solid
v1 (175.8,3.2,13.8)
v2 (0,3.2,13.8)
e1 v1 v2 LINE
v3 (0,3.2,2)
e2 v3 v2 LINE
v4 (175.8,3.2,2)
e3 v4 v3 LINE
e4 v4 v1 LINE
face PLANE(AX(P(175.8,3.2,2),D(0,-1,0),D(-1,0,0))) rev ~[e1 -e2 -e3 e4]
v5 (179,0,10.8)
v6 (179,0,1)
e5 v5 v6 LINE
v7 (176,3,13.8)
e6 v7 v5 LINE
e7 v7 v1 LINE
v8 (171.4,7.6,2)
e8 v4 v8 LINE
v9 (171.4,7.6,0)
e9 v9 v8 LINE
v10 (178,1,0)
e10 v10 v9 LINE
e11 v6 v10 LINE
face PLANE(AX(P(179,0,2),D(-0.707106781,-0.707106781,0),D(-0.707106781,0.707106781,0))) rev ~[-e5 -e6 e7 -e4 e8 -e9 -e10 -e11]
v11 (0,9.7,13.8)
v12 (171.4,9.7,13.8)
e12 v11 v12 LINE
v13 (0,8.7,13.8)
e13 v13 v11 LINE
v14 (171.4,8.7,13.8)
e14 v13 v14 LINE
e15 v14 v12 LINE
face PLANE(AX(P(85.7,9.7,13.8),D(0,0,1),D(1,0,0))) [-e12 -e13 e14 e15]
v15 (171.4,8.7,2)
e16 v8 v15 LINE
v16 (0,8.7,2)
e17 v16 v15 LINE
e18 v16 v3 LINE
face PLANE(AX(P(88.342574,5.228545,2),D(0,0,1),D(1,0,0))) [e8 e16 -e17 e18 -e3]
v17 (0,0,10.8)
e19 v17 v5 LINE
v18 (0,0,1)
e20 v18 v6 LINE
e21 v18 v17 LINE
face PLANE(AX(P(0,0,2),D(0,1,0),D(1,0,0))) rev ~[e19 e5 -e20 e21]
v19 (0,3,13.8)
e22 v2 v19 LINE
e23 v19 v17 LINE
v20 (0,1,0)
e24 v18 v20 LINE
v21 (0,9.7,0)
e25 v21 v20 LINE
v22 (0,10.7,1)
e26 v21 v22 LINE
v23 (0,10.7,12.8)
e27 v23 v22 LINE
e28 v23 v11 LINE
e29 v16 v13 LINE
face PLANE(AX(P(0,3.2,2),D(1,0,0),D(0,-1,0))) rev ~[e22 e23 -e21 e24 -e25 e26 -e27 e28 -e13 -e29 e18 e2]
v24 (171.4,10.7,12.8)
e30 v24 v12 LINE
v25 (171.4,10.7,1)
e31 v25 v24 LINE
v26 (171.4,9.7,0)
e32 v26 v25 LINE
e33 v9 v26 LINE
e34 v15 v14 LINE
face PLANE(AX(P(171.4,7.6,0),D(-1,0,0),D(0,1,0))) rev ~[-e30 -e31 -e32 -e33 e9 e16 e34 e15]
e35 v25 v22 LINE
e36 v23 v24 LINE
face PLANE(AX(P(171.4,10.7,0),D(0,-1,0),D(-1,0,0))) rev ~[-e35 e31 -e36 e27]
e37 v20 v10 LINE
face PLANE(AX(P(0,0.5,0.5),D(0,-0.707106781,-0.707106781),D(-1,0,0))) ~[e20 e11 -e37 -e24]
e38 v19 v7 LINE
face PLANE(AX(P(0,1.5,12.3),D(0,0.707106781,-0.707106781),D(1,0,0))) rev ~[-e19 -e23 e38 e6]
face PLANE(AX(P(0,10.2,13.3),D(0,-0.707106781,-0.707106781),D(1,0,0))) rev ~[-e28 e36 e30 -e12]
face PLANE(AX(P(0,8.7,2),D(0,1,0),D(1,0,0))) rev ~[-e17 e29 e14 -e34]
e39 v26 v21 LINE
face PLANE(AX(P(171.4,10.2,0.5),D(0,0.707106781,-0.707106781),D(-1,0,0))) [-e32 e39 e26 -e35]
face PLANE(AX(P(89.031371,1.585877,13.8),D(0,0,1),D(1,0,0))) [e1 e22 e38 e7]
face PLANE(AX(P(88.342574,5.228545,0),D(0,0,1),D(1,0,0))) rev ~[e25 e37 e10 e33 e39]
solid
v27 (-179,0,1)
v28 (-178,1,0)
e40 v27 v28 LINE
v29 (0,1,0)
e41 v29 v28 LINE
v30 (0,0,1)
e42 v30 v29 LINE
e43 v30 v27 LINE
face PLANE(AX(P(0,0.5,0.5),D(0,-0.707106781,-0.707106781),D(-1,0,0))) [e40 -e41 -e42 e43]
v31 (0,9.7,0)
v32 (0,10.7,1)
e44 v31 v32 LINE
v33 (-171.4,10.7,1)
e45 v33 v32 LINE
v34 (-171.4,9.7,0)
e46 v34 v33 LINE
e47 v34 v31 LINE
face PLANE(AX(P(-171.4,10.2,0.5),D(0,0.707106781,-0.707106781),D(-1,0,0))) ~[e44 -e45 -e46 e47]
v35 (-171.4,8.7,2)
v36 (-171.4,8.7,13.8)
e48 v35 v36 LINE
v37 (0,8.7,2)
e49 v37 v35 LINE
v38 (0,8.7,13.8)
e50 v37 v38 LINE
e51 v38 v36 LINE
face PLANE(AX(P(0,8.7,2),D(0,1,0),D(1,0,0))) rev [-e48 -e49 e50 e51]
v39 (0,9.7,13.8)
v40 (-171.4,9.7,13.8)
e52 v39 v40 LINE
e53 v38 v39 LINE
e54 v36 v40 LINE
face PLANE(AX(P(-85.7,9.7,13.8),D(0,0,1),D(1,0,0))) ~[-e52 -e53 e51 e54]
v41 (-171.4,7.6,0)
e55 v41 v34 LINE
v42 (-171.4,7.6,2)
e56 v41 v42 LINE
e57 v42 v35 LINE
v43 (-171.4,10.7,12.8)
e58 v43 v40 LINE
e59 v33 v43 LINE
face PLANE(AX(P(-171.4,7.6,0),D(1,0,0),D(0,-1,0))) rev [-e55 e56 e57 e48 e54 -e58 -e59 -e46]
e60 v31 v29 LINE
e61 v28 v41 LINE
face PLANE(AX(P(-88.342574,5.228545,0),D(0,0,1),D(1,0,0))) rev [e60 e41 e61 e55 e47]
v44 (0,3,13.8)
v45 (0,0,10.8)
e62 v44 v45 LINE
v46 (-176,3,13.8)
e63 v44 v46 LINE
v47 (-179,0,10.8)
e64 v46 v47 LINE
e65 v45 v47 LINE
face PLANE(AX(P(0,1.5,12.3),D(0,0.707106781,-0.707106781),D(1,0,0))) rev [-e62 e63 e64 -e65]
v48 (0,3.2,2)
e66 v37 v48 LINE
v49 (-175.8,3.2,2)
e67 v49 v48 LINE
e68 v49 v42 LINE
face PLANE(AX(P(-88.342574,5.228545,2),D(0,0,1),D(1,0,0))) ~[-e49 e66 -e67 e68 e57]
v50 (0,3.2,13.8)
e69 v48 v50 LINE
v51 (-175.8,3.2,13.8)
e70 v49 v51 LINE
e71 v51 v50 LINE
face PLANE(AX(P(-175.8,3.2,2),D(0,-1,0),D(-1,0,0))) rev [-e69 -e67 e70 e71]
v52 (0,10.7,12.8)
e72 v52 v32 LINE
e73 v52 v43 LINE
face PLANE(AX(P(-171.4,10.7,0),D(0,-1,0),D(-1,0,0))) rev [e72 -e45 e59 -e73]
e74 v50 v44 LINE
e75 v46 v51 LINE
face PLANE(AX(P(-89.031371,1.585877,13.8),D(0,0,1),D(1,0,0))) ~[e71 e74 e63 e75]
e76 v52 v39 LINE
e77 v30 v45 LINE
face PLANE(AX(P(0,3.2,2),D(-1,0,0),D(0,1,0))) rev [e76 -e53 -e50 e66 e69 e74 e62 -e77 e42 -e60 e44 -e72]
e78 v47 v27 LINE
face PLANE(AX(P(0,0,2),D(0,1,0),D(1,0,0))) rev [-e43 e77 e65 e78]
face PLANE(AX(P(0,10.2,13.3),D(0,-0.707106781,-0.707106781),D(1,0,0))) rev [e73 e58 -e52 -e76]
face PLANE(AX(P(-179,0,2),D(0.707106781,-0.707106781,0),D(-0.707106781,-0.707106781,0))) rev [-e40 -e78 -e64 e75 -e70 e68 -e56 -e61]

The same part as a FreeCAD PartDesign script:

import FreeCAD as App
import Part
import Sketcher

V = App.Vector
Q = App.Units.Quantity


def edges_at(feature, points):
    """Names of the edges that pass closest to the given points."""
    edges = feature.Shape.Edges
    near = lambda p: min(range(len(edges)), key=lambda i: edges[i].distToShape(Part.Vertex(*p))[0])
    return sorted({f"Edge{near(p) + 1}" for p in points})


def add_polygon(sketch, points):
    """Adds a closed chain of lines whose ends are joined by coincident constraints."""
    first, n = sketch.GeometryCount, len(points)
    for a, b in zip(points, points[1:] + points[:1]):
        sketch.addGeometry(Part.LineSegment(App.Vector(*a, 0), App.Vector(*b, 0)), False)
    for i in range(n):
        sketch.addConstraint(Sketcher.Constraint("Coincident", first + i, 2, first + (i + 1) % n, 1))

doc = App.newDocument("Part")
body = doc.addObject("PartDesign::Body", "Body")

# Sketch on XY plane
sketch1 = doc.addObject("Sketcher::SketchObject", "Sketch")
body.addObject(sketch1)
sketch1.AttachmentSupport = (doc.XY_Plane, [""])
sketch1.MapMode = "FlatFace"
add_polygon(sketch1, [(0, 10.7), (0, 0), (179, 0), (171.4, 7.6), (171.4, 10.7)])  # lines 0-4
sketch1.addConstraint([
    Sketcher.Constraint("Vertical", 0),
    Sketcher.Constraint("Horizontal", 1),
    Sketcher.Constraint("Vertical", 3),
    Sketcher.Constraint("Horizontal", 4),
    Sketcher.Constraint("Coincident", 0, 2, -1, 1),
    Sketcher.Constraint("DistanceX", 1, 1, 1, 2, 179.0),
    Sketcher.Constraint("Angle", 2, Q("135 deg")),
    Sketcher.Constraint("DistanceX", 4, 2, 4, 1, 171.4),
    Sketcher.Constraint("DistanceY", 0, 2, 0, 1, 10.7),
])
pad1 = doc.addObject("PartDesign::Pad", "Pad")
body.addObject(pad1)
pad1.Profile = sketch1
pad1.Length = 2

# Sketch on XY plane
sketch2 = doc.addObject("Sketcher::SketchObject", "Sketch001")
body.addObject(sketch2)
sketch2.AttachmentSupport = (doc.XY_Plane, [""])
sketch2.MapMode = "FlatFace"
sketch2.AttachmentOffset = App.Placement(V(0, 0, 2), App.Rotation())
add_polygon(sketch2, [(175.8, 3.2), (0, 3.2), (0, 0), (179, 0)])  # lines 0-3
add_polygon(sketch2, [(0, 10.7), (0, 8.7), (171.4, 8.7), (171.4, 10.7)])  # lines 4-7
sketch2.addConstraint([
    Sketcher.Constraint("Horizontal", 0),
    Sketcher.Constraint("Vertical", 1),
    Sketcher.Constraint("Horizontal", 2),
    Sketcher.Constraint("Vertical", 4),
    Sketcher.Constraint("Horizontal", 5),
    Sketcher.Constraint("Vertical", 6),
    Sketcher.Constraint("Horizontal", 7),
    Sketcher.Constraint("Coincident", 1, 2, -1, 1),
    Sketcher.Constraint("PointOnObject", 4, 2, -2),
    Sketcher.Constraint("DistanceX", 2, 1, 2, 2, 179.0),
    Sketcher.Constraint("DistanceY", 4, 2, 4, 1, 2.0),
    Sketcher.Constraint("Angle", 3, Q("135 deg")),
    Sketcher.Constraint("DistanceX", 0, 2, 0, 1, 175.8),
    Sketcher.Constraint("DistanceX", 5, 1, 5, 2, 171.4),
    Sketcher.Constraint("DistanceY", -1, 1, 4, 2, 8.7),
])
pad2 = doc.addObject("PartDesign::Pad", "Pad001")
body.addObject(pad2)
pad2.Profile = sketch2
pad2.Length = 11.8
doc.recompute()

chamfer = doc.addObject("PartDesign::Chamfer", "Chamfer")
body.addObject(chamfer)
chamfer.Base = (pad2, edges_at(pad2, [(89.5, 0, 13.8)]))
chamfer.Size = 3
doc.recompute()

chamfer2 = doc.addObject("PartDesign::Chamfer", "Chamfer001")
body.addObject(chamfer2)
chamfer2.Base = (chamfer, edges_at(chamfer, [(89.5, 0, 0), (85.7, 10.7, 0), (85.7, 10.7, 13.8)]))
chamfer2.Size = 1
body2 = doc.addObject("PartDesign::Body", "Body001")
doc.recompute()

mirroring = doc.addObject("Part::Mirroring", "Mirroring")
mirroring.Source = body
mirroring.Base = V(0, 0, 0)
mirroring.Normal = V(1, 0, 0)
body2.BaseFeature = mirroring
doc.recompute()
mirroring.Visibility = False

doc.recompute()
